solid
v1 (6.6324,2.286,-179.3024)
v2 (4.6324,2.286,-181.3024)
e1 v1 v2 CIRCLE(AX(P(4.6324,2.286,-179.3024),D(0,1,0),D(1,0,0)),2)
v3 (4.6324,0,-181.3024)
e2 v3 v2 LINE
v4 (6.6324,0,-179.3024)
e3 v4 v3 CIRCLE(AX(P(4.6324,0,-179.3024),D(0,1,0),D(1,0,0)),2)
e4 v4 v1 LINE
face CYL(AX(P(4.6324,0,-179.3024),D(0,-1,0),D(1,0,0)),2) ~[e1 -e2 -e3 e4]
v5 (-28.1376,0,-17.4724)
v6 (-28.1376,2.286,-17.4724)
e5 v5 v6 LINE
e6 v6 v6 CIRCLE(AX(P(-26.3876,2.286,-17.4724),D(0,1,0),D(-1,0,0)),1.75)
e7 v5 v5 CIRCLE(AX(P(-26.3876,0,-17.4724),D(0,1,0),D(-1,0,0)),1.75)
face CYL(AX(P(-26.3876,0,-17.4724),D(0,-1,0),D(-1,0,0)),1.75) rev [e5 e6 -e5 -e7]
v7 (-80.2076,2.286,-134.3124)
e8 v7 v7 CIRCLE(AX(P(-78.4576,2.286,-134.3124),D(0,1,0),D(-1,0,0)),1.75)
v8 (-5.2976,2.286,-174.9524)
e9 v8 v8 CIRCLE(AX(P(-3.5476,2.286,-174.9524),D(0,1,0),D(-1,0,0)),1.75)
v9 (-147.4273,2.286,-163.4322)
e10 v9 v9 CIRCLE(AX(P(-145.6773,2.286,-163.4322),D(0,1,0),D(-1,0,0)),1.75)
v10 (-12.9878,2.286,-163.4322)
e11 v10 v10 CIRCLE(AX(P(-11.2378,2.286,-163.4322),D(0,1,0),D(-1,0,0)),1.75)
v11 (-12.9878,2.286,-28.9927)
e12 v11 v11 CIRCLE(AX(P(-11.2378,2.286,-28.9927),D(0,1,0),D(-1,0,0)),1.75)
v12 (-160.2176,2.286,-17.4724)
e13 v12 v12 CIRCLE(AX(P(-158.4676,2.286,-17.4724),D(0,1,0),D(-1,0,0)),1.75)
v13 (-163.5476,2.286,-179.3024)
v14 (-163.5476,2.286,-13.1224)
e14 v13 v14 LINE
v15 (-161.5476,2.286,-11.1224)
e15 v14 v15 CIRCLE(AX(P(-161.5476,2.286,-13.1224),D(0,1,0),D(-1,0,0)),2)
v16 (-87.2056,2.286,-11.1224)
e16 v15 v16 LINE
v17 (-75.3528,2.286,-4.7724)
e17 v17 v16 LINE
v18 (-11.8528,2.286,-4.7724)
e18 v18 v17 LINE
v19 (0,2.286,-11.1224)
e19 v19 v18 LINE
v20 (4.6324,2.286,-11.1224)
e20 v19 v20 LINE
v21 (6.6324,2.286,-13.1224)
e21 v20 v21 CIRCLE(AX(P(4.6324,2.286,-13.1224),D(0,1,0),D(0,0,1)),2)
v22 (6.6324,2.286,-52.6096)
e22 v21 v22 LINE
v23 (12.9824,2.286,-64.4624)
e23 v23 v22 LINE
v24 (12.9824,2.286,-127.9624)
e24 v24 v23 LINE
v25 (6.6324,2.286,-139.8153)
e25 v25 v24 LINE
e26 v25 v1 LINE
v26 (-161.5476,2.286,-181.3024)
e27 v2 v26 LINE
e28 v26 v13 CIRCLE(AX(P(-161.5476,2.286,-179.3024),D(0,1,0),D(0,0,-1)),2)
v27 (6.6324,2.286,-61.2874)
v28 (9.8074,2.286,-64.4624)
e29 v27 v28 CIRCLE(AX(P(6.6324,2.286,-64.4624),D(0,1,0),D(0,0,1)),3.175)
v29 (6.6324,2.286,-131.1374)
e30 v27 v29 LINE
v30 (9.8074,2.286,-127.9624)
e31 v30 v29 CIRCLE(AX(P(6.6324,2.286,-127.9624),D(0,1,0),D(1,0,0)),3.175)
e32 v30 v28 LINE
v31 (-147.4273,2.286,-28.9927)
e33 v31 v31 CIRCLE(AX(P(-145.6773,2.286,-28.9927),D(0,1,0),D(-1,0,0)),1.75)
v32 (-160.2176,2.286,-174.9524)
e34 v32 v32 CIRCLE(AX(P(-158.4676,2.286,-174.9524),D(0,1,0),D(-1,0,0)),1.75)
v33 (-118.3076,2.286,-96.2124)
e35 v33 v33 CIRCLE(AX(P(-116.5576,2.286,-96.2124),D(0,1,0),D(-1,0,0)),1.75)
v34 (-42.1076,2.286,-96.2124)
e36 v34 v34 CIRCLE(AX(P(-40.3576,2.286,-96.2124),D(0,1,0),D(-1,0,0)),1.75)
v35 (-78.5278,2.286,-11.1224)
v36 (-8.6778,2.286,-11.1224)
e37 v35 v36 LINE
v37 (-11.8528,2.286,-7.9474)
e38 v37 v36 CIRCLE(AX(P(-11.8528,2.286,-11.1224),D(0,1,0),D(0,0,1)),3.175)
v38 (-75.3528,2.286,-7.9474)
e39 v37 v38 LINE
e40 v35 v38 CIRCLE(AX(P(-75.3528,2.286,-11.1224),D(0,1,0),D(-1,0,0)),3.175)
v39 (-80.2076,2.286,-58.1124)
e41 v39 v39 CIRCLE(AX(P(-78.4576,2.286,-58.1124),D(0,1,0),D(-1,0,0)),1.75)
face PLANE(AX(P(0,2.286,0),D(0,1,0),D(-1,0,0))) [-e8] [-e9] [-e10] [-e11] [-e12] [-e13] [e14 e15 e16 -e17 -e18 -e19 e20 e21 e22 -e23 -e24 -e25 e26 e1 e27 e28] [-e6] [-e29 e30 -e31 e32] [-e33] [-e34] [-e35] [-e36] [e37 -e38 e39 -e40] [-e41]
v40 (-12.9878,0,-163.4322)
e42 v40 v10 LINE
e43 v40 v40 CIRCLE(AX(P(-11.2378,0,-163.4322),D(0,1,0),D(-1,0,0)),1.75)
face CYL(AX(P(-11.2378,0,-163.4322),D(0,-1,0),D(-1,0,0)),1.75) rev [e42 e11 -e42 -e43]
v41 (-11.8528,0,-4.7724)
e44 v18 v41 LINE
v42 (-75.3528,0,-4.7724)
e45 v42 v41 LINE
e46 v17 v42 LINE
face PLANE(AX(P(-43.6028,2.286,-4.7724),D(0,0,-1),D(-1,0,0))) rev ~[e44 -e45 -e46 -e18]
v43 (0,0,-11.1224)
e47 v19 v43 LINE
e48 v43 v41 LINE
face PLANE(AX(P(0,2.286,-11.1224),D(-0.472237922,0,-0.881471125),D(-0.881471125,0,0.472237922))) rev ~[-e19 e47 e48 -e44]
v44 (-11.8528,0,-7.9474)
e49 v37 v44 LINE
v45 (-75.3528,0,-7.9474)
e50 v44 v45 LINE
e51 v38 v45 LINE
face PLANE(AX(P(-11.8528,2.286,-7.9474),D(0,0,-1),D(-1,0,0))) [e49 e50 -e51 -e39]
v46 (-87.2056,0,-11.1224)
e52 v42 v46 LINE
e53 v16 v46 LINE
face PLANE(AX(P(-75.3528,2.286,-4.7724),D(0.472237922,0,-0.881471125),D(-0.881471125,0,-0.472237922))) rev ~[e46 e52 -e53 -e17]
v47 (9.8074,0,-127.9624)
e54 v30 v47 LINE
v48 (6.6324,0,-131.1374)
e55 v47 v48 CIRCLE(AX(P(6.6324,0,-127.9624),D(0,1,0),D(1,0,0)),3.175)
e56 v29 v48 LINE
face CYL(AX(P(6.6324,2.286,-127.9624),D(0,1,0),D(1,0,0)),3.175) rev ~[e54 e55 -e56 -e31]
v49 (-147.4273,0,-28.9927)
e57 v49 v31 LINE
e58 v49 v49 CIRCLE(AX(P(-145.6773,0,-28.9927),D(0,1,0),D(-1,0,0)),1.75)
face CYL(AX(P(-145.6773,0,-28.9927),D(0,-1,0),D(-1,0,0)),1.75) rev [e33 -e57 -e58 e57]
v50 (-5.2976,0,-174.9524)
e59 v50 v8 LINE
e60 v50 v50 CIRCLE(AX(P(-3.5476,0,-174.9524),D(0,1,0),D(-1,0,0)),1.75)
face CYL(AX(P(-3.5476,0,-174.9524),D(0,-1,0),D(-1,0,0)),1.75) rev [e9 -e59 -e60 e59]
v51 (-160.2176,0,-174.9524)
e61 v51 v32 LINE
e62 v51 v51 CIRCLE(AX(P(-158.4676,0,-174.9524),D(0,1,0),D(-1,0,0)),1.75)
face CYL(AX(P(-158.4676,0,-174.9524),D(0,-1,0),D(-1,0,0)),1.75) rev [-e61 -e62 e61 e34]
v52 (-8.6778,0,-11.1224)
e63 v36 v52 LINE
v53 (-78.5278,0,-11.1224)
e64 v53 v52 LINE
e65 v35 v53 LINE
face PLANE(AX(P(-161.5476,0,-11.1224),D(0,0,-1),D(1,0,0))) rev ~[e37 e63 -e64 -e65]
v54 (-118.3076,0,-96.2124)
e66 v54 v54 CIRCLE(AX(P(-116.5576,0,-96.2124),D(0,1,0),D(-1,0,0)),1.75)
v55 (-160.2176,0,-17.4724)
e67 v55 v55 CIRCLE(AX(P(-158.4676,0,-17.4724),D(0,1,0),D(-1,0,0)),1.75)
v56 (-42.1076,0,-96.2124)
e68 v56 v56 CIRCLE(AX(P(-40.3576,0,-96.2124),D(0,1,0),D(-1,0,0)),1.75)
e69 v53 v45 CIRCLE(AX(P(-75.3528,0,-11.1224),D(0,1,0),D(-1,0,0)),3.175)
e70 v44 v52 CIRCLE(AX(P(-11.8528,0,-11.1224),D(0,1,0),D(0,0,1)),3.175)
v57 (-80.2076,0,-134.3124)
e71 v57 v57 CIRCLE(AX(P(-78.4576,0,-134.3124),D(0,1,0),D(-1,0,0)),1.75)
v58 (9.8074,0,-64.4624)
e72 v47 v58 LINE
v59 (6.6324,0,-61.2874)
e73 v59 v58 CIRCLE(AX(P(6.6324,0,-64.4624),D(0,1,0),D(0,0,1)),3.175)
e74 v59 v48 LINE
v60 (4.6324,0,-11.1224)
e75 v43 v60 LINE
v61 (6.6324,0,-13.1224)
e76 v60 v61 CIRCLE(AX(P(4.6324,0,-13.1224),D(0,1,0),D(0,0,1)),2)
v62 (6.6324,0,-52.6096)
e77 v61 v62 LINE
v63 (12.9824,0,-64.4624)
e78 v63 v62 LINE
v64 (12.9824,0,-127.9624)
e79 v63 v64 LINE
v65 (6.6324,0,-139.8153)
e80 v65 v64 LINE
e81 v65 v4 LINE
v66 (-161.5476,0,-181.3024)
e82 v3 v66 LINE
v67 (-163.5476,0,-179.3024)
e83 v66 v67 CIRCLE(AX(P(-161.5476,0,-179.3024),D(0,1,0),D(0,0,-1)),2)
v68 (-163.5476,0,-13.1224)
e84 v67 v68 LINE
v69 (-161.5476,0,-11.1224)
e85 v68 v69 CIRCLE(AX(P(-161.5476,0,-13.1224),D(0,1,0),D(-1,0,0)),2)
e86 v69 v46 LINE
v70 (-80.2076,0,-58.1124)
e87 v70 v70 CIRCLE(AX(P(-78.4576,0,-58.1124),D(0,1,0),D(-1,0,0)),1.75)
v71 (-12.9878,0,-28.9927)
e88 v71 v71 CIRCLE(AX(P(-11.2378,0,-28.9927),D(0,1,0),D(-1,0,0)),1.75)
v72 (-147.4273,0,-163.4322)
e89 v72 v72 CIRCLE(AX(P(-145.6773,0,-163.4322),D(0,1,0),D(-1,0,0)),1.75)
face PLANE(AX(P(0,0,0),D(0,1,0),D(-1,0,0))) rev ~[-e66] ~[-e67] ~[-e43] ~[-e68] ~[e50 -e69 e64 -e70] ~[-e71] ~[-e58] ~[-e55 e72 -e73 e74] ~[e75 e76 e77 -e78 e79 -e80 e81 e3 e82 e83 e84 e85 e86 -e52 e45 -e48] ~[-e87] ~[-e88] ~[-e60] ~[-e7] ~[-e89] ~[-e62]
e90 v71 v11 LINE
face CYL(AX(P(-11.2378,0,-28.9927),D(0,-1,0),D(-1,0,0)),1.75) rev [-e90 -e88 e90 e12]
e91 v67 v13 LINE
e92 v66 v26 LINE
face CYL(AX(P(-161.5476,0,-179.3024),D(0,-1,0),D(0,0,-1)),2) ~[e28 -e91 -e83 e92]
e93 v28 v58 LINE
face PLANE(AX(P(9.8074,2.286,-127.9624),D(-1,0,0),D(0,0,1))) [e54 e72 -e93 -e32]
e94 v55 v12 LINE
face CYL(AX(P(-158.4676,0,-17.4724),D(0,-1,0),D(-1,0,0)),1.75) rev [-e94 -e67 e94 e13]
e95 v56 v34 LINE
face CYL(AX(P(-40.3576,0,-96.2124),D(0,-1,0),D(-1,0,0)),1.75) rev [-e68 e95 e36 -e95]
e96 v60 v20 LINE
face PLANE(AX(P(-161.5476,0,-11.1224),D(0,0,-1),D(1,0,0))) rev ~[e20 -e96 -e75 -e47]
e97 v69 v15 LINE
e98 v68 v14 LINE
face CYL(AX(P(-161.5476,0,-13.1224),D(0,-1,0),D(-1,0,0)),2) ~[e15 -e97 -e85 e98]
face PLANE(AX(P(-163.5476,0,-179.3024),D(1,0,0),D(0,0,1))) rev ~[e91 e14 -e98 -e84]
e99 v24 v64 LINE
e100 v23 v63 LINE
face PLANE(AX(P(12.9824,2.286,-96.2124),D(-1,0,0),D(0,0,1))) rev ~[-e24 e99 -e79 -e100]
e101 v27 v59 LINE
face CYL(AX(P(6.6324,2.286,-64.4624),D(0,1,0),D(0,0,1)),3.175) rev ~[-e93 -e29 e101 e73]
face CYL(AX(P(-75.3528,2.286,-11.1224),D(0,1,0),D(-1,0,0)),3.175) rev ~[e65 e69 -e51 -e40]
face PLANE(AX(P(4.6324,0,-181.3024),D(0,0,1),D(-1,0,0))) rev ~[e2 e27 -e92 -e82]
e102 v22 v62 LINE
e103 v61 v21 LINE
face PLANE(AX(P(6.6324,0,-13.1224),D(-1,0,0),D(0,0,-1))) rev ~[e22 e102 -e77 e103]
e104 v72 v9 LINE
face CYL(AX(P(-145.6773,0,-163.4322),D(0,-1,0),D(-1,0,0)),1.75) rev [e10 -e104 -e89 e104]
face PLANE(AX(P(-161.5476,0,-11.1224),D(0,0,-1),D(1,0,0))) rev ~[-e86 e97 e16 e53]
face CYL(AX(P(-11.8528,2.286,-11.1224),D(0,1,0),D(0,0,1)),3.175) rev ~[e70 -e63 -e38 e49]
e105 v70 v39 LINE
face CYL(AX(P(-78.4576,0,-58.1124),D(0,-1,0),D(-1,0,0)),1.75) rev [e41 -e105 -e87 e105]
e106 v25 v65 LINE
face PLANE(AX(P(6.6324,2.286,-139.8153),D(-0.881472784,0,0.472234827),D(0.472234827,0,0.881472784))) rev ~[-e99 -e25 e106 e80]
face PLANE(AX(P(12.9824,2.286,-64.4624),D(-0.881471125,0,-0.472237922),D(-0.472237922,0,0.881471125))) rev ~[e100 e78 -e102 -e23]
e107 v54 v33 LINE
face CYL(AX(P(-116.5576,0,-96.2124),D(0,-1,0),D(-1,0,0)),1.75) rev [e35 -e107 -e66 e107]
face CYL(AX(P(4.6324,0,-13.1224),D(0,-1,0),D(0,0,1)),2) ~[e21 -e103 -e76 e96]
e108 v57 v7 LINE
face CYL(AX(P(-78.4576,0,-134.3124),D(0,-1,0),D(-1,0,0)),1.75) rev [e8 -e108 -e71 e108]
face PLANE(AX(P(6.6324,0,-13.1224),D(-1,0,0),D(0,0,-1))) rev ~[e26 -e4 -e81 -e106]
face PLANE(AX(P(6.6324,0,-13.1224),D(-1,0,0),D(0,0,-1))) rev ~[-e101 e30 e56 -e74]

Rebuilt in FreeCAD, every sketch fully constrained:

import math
import FreeCAD as App
import Part
import Sketcher
Q = App.Units.Quantity

doc = App.newDocument("Part")
body = doc.addObject("PartDesign::Body", "Body")

sketch1 = doc.addObject("Sketcher::SketchObject", "Sketch")
body.addObject(sketch1)
sketch1.AttachmentSupport = (doc.XZ_Plane, [""])
sketch1.MapMode = "FlatFace"
sketch1.addGeometry(Part.ArcOfCircle(Part.Circle(App.Vector(4.6, -13.1, 0), App.Vector(0, 0, 1), 2), math.radians(0), math.radians(90)), False)
sketch1.addGeometry(Part.LineSegment(App.Vector(6.6, -13.1, 0), App.Vector(6.6, -179.3, 0)), False)
sketch1.addGeometry(Part.ArcOfCircle(Part.Circle(App.Vector(4.6, -179.3, 0), App.Vector(0, 0, 1), 2), math.radians(-90), math.radians(0)), False)
sketch1.addGeometry(Part.LineSegment(App.Vector(4.6, -181.3, 0), App.Vector(-161.5, -181.3, 0)), False)
sketch1.addGeometry(Part.ArcOfCircle(Part.Circle(App.Vector(-161.5, -179.3, 0), App.Vector(0, 0, 1), 2), math.radians(180), math.radians(270)), False)
sketch1.addGeometry(Part.LineSegment(App.Vector(-163.5, -179.3, 0), App.Vector(-163.5, -13.1, 0)), False)
sketch1.addGeometry(Part.ArcOfCircle(Part.Circle(App.Vector(-161.5, -13.1, 0), App.Vector(0, 0, 1), 2), math.radians(90), math.radians(180)), False)
sketch1.addGeometry(Part.LineSegment(App.Vector(-161.5, -11.1, 0), App.Vector(4.6, -11.1, 0)), False)
sketch1.addGeometry(Part.Circle(App.Vector(-3.5, -175, 0), App.Vector(0, 0, 1), 1.8), False)
sketch1.addGeometry(Part.Circle(App.Vector(-11.2, -163.4, 0), App.Vector(0, 0, 1), 1.8), False)
sketch1.addGeometry(Part.Circle(App.Vector(-158.5, -175, 0), App.Vector(0, 0, 1), 1.8), False)
sketch1.addGeometry(Part.Circle(App.Vector(-145.7, -163.4, 0), App.Vector(0, 0, 1), 1.8), False)
sketch1.addGeometry(Part.Circle(App.Vector(-78.5, -134.3, 0), App.Vector(0, 0, 1), 1.8), False)
sketch1.addGeometry(Part.Circle(App.Vector(-40.4, -96.2, 0), App.Vector(0, 0, 1), 1.8), False)
sketch1.addGeometry(Part.Circle(App.Vector(-11.2, -29, 0), App.Vector(0, 0, 1), 1.8), False)
sketch1.addGeometry(Part.Circle(App.Vector(-26.4, -17.5, 0), App.Vector(0, 0, 1), 1.8), False)
sketch1.addGeometry(Part.Circle(App.Vector(-116.6, -96.2, 0), App.Vector(0, 0, 1), 1.8), False)
sketch1.addGeometry(Part.Circle(App.Vector(-78.5, -58.1, 0), App.Vector(0, 0, 1), 1.8), False)
sketch1.addGeometry(Part.Circle(App.Vector(-145.7, -29, 0), App.Vector(0, 0, 1), 1.8), False)
sketch1.addGeometry(Part.Circle(App.Vector(-158.5, -17.5, 0), App.Vector(0, 0, 1), 1.8), False)
sketch1.addConstraint(Sketcher.Constraint("Tangent", 0, 1, 1, 1))
sketch1.addConstraint(Sketcher.Constraint("Tangent", 1, 2, 2, 2))
sketch1.addConstraint(Sketcher.Constraint("Tangent", 2, 1, 3, 1))
sketch1.addConstraint(Sketcher.Constraint("Tangent", 3, 2, 4, 2))
sketch1.addConstraint(Sketcher.Constraint("Tangent", 4, 1, 5, 1))
sketch1.addConstraint(Sketcher.Constraint("Tangent", 5, 2, 6, 2))
sketch1.addConstraint(Sketcher.Constraint("Tangent", 6, 1, 7, 1))
sketch1.addConstraint(Sketcher.Constraint("Tangent", 7, 2, 0, 2))
sketch1.addConstraint(Sketcher.Constraint("Vertical", 1))
sketch1.addConstraint(Sketcher.Constraint("Horizontal", 3))
sketch1.addConstraint(Sketcher.Constraint("Vertical", 5))
sketch1.addConstraint(Sketcher.Constraint("Horizontal", 7))
sketch1.addConstraint(Sketcher.Constraint("Equal", 0, 2))
sketch1.addConstraint(Sketcher.Constraint("Equal", 2, 4))
sketch1.addConstraint(Sketcher.Constraint("Equal", 4, 6))
sketch1.addConstraint(Sketcher.Constraint("Equal", 8, 9))
sketch1.addConstraint(Sketcher.Constraint("Equal", 9, 10))
sketch1.addConstraint(Sketcher.Constraint("Equal", 10, 11))
sketch1.addConstraint(Sketcher.Constraint("Equal", 11, 12))
sketch1.addConstraint(Sketcher.Constraint("Equal", 12, 13))
sketch1.addConstraint(Sketcher.Constraint("Equal", 13, 14))
sketch1.addConstraint(Sketcher.Constraint("Equal", 14, 15))
sketch1.addConstraint(Sketcher.Constraint("Equal", 15, 16))
sketch1.addConstraint(Sketcher.Constraint("Equal", 16, 17))
sketch1.addConstraint(Sketcher.Constraint("Equal", 17, 18))
sketch1.addConstraint(Sketcher.Constraint("Equal", 18, 19))
sketch1.addConstraint(Sketcher.Constraint("Horizontal", 8, 3, 10, 3))
sketch1.addConstraint(Sketcher.Constraint("Horizontal", 9, 3, 11, 3))
sketch1.addConstraint(Sketcher.Constraint("Horizontal", 13, 3, 16, 3))
sketch1.addConstraint(Sketcher.Constraint("Horizontal", 14, 3, 18, 3))
sketch1.addConstraint(Sketcher.Constraint("Horizontal", 15, 3, 19, 3))
sketch1.addConstraint(Sketcher.Constraint("Vertical", 9, 3, 14, 3))
sketch1.addConstraint(Sketcher.Constraint("Vertical", 12, 3, 17, 3))
sketch1.addConstraint(Sketcher.Constraint("Vertical", 11, 3, 18, 3))
sketch1.addConstraint(Sketcher.Constraint("Vertical", 10, 3, 19, 3))
sketch1.addConstraint(Sketcher.Constraint("Equal", 7, 1))
sketch1.addConstraint(Sketcher.Constraint("Diameter", 8, Q("0.1378 in")))
sketch1.addConstraint(Sketcher.Constraint("DistanceX", 16, 3, 13, 3, Q("3 in")))
sketch1.addConstraint(Sketcher.Constraint("DistanceY", 12, 3, 17, 3, Q("3 in")))
sketch1.addConstraint(Sketcher.Constraint("DistanceY", 8, 3, 12, 3, Q("1.6 in")))
sketch1.addConstraint(Sketcher.Constraint("DistanceX", 12, 3, 13, 3, Q("1.5 in")))
sketch1.addConstraint(Sketcher.Constraint("DistanceY", 12, 3, 13, 3, Q("1.5 in")))
sketch1.addConstraint(Sketcher.Constraint("DistanceY", 13, 3, 15, 3, Q("3.1 in")))
sketch1.addConstraint(Sketcher.Constraint("DistanceX", 19, 3, 15, 3, Q("5.2 in")))
sketch1.addConstraint(Sketcher.Constraint("DistanceX", 15, 3, 0, 1, Q("1.3 in")))
sketch1.addConstraint(Sketcher.Constraint("DistanceX", 4, 1, 10, 3, Q("0.2 in")))
sketch1.addConstraint(Sketcher.Constraint("Radius", 0, 2.0))
sketch1.addConstraint(Sketcher.Constraint("DistanceX", 10, 3, 12, 3, Q("3.15 in")))
sketch1.addConstraint(Sketcher.Constraint("DistanceY", 2, 1, 8, 3, Q("0.25 in")))
sketch1.addConstraint(Sketcher.Constraint("DistanceY", 8, 3, -1, 1, Q("6.8879 in")))
sketch1.addConstraint(Sketcher.Constraint("DistanceX", 9, 3, 2, 3, Q("0.6248 in")))
sketch1.addConstraint(Sketcher.Constraint("DistanceY", 2, 3, 9, 3, Q("0.6248 in")))
sketch1.addConstraint(Sketcher.Constraint("DistanceX", 11, 3, 9, 3, Q("5.2929 in")))
sketch1.addConstraint(Sketcher.Constraint("DistanceY", 9, 3, 14, 3, Q("5.2929 in")))
sketch1.addConstraint(Sketcher.Constraint("DistanceX", -1, 1, 0, 3, 4.6324))
sketch1.addConstraint(Sketcher.Constraint("DistanceX", 8, 3, -1, 1, 3.5476))
pad1 = doc.addObject("PartDesign::Pad", "Pad")
body.addObject(pad1)
pad1.Profile = sketch1
pad1.Length = Q("0.09 in")
pad1.Reversed = True

sketch2 = doc.addObject("Sketcher::SketchObject", "Sketch001")
body.addObject(sketch2)
sketch2.AttachmentSupport = (doc.XZ_Plane, [""])
sketch2.MapMode = "FlatFace"
sketch2.AttachmentOffset = App.Placement(App.Vector(0, 0, -0.09 * 25.4), App.Rotation())
sketch2.addGeometry(Part.LineSegment(App.Vector(13, -64.5, 0), App.Vector(13, -128, 0)), False)
sketch2.addGeometry(Part.LineSegment(App.Vector(13, -128, 0), App.Vector(6.6, -139.8, 0)), False)
sketch2.addGeometry(Part.LineSegment(App.Vector(6.6, -139.8, 0), App.Vector(6.6, -131.1, 0)), False)
sketch2.addGeometry(Part.ArcOfCircle(Part.Circle(App.Vector(6.6, -128, 0), App.Vector(0, 0, 1), 3.2), math.radians(-90), math.radians(0)), False)
sketch2.addGeometry(Part.LineSegment(App.Vector(9.8, -128, 0), App.Vector(9.8, -64.5, 0)), False)
sketch2.addGeometry(Part.ArcOfCircle(Part.Circle(App.Vector(6.6, -64.5, 0), App.Vector(0, 0, 1), 3.2), math.radians(0), math.radians(90)), False)
sketch2.addGeometry(Part.LineSegment(App.Vector(6.6, -61.3, 0), App.Vector(6.6, -52.6, 0)), False)
sketch2.addGeometry(Part.LineSegment(App.Vector(6.6, -52.6, 0), App.Vector(13, -64.5, 0)), False)
sketch2.addGeometry(Part.LineSegment(App.Vector(-75.4, -4.8, 0), App.Vector(-11.9, -4.8, 0)), False)
sketch2.addGeometry(Part.LineSegment(App.Vector(-11.9, -4.8, 0), App.Vector(0, -11.1, 0)), False)
sketch2.addGeometry(Part.LineSegment(App.Vector(0, -11.1, 0), App.Vector(-8.7, -11.1, 0)), False)
sketch2.addGeometry(Part.ArcOfCircle(Part.Circle(App.Vector(-11.9, -11.1, 0), App.Vector(0, 0, 1), 3.2), math.radians(0), math.radians(90)), False)
sketch2.addGeometry(Part.LineSegment(App.Vector(-11.9, -7.9, 0), App.Vector(-75.4, -7.9, 0)), False)
sketch2.addGeometry(Part.ArcOfCircle(Part.Circle(App.Vector(-75.4, -11.1, 0), App.Vector(0, 0, 1), 3.2), math.radians(90), math.radians(180)), False)
sketch2.addGeometry(Part.LineSegment(App.Vector(-78.5, -11.1, 0), App.Vector(-87.2, -11.1, 0)), False)
sketch2.addGeometry(Part.LineSegment(App.Vector(-87.2, -11.1, 0), App.Vector(-75.4, -4.8, 0)), False)
sketch2.addConstraint(Sketcher.Constraint("Coincident", 0, 2, 1, 1))
sketch2.addConstraint(Sketcher.Constraint("Coincident", 1, 2, 2, 1))
sketch2.addConstraint(Sketcher.Constraint("Coincident", 2, 2, 3, 1))
sketch2.addConstraint(Sketcher.Constraint("Tangent", 3, 2, 4, 1))
sketch2.addConstraint(Sketcher.Constraint("Tangent", 4, 2, 5, 1))
sketch2.addConstraint(Sketcher.Constraint("Coincident", 5, 2, 6, 1))
sketch2.addConstraint(Sketcher.Constraint("Coincident", 6, 2, 7, 1))
sketch2.addConstraint(Sketcher.Constraint("Coincident", 7, 2, 0, 1))
sketch2.addConstraint(Sketcher.Constraint("Coincident", 8, 2, 9, 1))
sketch2.addConstraint(Sketcher.Constraint("Coincident", 9, 2, 10, 1))
sketch2.addConstraint(Sketcher.Constraint("Coincident", 10, 2, 11, 1))
sketch2.addConstraint(Sketcher.Constraint("Tangent", 11, 2, 12, 1))
sketch2.addConstraint(Sketcher.Constraint("Tangent", 12, 2, 13, 1))
sketch2.addConstraint(Sketcher.Constraint("Coincident", 13, 2, 14, 1))
sketch2.addConstraint(Sketcher.Constraint("Coincident", 14, 2, 15, 1))
sketch2.addConstraint(Sketcher.Constraint("Coincident", 15, 2, 8, 1))
sketch2.addConstraint(Sketcher.Constraint("Vertical", 0))
sketch2.addConstraint(Sketcher.Constraint("Vertical", 2))
sketch2.addConstraint(Sketcher.Constraint("Vertical", 4))
sketch2.addConstraint(Sketcher.Constraint("Vertical", 6))
sketch2.addConstraint(Sketcher.Constraint("Horizontal", 8))
sketch2.addConstraint(Sketcher.Constraint("Horizontal", 10))
sketch2.addConstraint(Sketcher.Constraint("Horizontal", 12))
sketch2.addConstraint(Sketcher.Constraint("Horizontal", 14))
sketch2.addConstraint(Sketcher.Constraint("Equal", 3, 5))
sketch2.addConstraint(Sketcher.Constraint("Equal", 5, 11))
sketch2.addConstraint(Sketcher.Constraint("Equal", 11, 13))
sketch2.addConstraint(Sketcher.Constraint("PointOnObject", 9, 2, -2))
sketch2.addConstraint(Sketcher.Constraint("Perpendicular", 1, 9))
sketch2.addConstraint(Sketcher.Constraint("Perpendicular", 7, 15))
sketch2.addConstraint(Sketcher.Constraint("Horizontal", 3, 3, 0, 2))
sketch2.addConstraint(Sketcher.Constraint("Horizontal", 4, 2, 7, 2))
sketch2.addConstraint(Sketcher.Constraint("Horizontal", 13, 3, 9, 2))
sketch2.addConstraint(Sketcher.Constraint("Horizontal", 10, 2, 13, 2))
sketch2.addConstraint(Sketcher.Constraint("Vertical", 5, 3, 1, 2))
sketch2.addConstraint(Sketcher.Constraint("Vertical", 2, 2, 5, 2))
sketch2.addConstraint(Sketcher.Constraint("Vertical", 11, 3, 8, 2))
sketch2.addConstraint(Sketcher.Constraint("Vertical", 12, 2, 15, 2))
sketch2.addConstraint(Sketcher.Constraint("Equal", 10, 14))
sketch2.addConstraint(Sketcher.Constraint("Equal", 12, 0))
sketch2.addConstraint(Sketcher.Constraint("Equal", 14, 2))
sketch2.addConstraint(Sketcher.Constraint("DistanceX", 8, 1, 8, 2, Q("2.5 in")))
sketch2.addConstraint(Sketcher.Constraint("Radius", 3, Q("0.125 in")))
sketch2.addConstraint(Sketcher.Constraint("DistanceY", 5, 3, 11, 3, Q("2.1 in")))
sketch2.addConstraint(Sketcher.Constraint("Angle", 1, Q("-118.1795 deg")))
sketch2.addConstraint(Sketcher.Constraint("DistanceX", 3, 3, 0, 2, Q("0.25 in")))
sketch2.addConstraint(Sketcher.Constraint("DistanceY", 3, 3, -1, 1, Q("5.0379 in")))
sketch2.addConstraint(Sketcher.Constraint("DistanceX", -1, 1, 3, 3, 6.6324))
pad2 = doc.addObject("PartDesign::Pad", "Pad001")
body.addObject(pad2)
pad2.Profile = sketch2
pad2.Length = Q("0.09 in")

doc.recompute()
